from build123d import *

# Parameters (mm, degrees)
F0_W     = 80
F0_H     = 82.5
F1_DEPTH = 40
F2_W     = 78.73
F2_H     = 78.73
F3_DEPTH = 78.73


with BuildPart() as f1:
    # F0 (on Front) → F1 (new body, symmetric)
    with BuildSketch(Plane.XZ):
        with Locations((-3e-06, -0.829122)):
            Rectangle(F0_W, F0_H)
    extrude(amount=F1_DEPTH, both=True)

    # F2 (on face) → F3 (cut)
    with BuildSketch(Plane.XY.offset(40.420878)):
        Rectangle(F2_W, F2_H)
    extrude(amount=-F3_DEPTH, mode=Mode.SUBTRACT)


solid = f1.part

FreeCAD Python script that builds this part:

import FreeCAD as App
import Part
import Sketcher
from FreeCAD import Vector
Q = App.Units.Quantity

doc = App.newDocument("Part")
body = doc.addObject("PartDesign::Body", "Body")

sketch1 = doc.addObject("Sketcher::SketchObject", "Sketch")
body.addObject(sketch1)
sketch1.AttachmentSupport = (doc.XZ_Plane, [""])
sketch1.MapMode = "FlatFace"
sketch1.addGeometry([
    Part.LineSegment(Vector(-40, 40, 0), Vector(-40, -42, 0)),
    Part.LineSegment(Vector(-40, -42, 0), Vector(40, -42, 0)),
    Part.LineSegment(Vector(40, -42, 0), Vector(40, 40, 0)),
    Part.LineSegment(Vector(40, 40, 0), Vector(-40, 40, 0)),
], False)
sketch1.addConstraint([
    Sketcher.Constraint("Coincident", 0, 2, 1, 1),
    Sketcher.Constraint("Coincident", 1, 2, 2, 1),
    Sketcher.Constraint("Coincident", 2, 2, 3, 1),
    Sketcher.Constraint("Coincident", 3, 2, 0, 1),
    Sketcher.Constraint("Vertical", 0),
    Sketcher.Constraint("Horizontal", 1),
    Sketcher.Constraint("Vertical", 2),
    Sketcher.Constraint("Horizontal", 3),
    Sketcher.Constraint("DistanceX", 1, 1, 1, 2, Q("80 mm")),
    Sketcher.Constraint("DistanceY", 0, 2, 0, 1, Q("82.5 mm")),
    Sketcher.Constraint("DistanceY", 0, 2, -1, 1, Q("42.079122 mm")),
    Sketcher.Constraint("DistanceX", 0, 2, -1, 1, Q("40.000003 mm")),
])
pad1 = doc.addObject("PartDesign::Pad", "Pad")
body.addObject(pad1)
pad1.Profile = sketch1
pad1.Length = 80
pad1.Midplane = True

sketch2 = doc.addObject("Sketcher::SketchObject", "Sketch001")
body.addObject(sketch2)
sketch2.AttachmentSupport = (doc.XY_Plane, [""])
sketch2.MapMode = "FlatFace"
sketch2.AttachmentOffset = App.Placement(Vector(0, 0, 40.420878), App.Rotation())
sketch2.addGeometry([
    Part.LineSegment(Vector(-39, 39, 0), Vector(-39, -39, 0)),
    Part.LineSegment(Vector(-39, -39, 0), Vector(39, -39, 0)),
    Part.LineSegment(Vector(39, -39, 0), Vector(39, 39, 0)),
    Part.LineSegment(Vector(39, 39, 0), Vector(-39, 39, 0)),
], False)
sketch2.addConstraint([
    Sketcher.Constraint("Coincident", 0, 2, 1, 1),
    Sketcher.Constraint("Coincident", 1, 2, 2, 1),
    Sketcher.Constraint("Coincident", 2, 2, 3, 1),
    Sketcher.Constraint("Coincident", 3, 2, 0, 1),
    Sketcher.Constraint("Vertical", 0),
    Sketcher.Constraint("Horizontal", 1),
    Sketcher.Constraint("Vertical", 2),
    Sketcher.Constraint("Horizontal", 3),
    Sketcher.Constraint("Symmetric", 0, 2, 2, 2, -1, 1),
    Sketcher.Constraint("Equal", 3, 0),
    Sketcher.Constraint("DistanceX", 1, 1, 1, 2, Q("78.73 mm")),
])
pocket1 = doc.addObject("PartDesign::Pocket", "Pocket")
body.addObject(pocket1)
pocket1.Profile = sketch2
pocket1.Length = 78.73

doc.recompute()
